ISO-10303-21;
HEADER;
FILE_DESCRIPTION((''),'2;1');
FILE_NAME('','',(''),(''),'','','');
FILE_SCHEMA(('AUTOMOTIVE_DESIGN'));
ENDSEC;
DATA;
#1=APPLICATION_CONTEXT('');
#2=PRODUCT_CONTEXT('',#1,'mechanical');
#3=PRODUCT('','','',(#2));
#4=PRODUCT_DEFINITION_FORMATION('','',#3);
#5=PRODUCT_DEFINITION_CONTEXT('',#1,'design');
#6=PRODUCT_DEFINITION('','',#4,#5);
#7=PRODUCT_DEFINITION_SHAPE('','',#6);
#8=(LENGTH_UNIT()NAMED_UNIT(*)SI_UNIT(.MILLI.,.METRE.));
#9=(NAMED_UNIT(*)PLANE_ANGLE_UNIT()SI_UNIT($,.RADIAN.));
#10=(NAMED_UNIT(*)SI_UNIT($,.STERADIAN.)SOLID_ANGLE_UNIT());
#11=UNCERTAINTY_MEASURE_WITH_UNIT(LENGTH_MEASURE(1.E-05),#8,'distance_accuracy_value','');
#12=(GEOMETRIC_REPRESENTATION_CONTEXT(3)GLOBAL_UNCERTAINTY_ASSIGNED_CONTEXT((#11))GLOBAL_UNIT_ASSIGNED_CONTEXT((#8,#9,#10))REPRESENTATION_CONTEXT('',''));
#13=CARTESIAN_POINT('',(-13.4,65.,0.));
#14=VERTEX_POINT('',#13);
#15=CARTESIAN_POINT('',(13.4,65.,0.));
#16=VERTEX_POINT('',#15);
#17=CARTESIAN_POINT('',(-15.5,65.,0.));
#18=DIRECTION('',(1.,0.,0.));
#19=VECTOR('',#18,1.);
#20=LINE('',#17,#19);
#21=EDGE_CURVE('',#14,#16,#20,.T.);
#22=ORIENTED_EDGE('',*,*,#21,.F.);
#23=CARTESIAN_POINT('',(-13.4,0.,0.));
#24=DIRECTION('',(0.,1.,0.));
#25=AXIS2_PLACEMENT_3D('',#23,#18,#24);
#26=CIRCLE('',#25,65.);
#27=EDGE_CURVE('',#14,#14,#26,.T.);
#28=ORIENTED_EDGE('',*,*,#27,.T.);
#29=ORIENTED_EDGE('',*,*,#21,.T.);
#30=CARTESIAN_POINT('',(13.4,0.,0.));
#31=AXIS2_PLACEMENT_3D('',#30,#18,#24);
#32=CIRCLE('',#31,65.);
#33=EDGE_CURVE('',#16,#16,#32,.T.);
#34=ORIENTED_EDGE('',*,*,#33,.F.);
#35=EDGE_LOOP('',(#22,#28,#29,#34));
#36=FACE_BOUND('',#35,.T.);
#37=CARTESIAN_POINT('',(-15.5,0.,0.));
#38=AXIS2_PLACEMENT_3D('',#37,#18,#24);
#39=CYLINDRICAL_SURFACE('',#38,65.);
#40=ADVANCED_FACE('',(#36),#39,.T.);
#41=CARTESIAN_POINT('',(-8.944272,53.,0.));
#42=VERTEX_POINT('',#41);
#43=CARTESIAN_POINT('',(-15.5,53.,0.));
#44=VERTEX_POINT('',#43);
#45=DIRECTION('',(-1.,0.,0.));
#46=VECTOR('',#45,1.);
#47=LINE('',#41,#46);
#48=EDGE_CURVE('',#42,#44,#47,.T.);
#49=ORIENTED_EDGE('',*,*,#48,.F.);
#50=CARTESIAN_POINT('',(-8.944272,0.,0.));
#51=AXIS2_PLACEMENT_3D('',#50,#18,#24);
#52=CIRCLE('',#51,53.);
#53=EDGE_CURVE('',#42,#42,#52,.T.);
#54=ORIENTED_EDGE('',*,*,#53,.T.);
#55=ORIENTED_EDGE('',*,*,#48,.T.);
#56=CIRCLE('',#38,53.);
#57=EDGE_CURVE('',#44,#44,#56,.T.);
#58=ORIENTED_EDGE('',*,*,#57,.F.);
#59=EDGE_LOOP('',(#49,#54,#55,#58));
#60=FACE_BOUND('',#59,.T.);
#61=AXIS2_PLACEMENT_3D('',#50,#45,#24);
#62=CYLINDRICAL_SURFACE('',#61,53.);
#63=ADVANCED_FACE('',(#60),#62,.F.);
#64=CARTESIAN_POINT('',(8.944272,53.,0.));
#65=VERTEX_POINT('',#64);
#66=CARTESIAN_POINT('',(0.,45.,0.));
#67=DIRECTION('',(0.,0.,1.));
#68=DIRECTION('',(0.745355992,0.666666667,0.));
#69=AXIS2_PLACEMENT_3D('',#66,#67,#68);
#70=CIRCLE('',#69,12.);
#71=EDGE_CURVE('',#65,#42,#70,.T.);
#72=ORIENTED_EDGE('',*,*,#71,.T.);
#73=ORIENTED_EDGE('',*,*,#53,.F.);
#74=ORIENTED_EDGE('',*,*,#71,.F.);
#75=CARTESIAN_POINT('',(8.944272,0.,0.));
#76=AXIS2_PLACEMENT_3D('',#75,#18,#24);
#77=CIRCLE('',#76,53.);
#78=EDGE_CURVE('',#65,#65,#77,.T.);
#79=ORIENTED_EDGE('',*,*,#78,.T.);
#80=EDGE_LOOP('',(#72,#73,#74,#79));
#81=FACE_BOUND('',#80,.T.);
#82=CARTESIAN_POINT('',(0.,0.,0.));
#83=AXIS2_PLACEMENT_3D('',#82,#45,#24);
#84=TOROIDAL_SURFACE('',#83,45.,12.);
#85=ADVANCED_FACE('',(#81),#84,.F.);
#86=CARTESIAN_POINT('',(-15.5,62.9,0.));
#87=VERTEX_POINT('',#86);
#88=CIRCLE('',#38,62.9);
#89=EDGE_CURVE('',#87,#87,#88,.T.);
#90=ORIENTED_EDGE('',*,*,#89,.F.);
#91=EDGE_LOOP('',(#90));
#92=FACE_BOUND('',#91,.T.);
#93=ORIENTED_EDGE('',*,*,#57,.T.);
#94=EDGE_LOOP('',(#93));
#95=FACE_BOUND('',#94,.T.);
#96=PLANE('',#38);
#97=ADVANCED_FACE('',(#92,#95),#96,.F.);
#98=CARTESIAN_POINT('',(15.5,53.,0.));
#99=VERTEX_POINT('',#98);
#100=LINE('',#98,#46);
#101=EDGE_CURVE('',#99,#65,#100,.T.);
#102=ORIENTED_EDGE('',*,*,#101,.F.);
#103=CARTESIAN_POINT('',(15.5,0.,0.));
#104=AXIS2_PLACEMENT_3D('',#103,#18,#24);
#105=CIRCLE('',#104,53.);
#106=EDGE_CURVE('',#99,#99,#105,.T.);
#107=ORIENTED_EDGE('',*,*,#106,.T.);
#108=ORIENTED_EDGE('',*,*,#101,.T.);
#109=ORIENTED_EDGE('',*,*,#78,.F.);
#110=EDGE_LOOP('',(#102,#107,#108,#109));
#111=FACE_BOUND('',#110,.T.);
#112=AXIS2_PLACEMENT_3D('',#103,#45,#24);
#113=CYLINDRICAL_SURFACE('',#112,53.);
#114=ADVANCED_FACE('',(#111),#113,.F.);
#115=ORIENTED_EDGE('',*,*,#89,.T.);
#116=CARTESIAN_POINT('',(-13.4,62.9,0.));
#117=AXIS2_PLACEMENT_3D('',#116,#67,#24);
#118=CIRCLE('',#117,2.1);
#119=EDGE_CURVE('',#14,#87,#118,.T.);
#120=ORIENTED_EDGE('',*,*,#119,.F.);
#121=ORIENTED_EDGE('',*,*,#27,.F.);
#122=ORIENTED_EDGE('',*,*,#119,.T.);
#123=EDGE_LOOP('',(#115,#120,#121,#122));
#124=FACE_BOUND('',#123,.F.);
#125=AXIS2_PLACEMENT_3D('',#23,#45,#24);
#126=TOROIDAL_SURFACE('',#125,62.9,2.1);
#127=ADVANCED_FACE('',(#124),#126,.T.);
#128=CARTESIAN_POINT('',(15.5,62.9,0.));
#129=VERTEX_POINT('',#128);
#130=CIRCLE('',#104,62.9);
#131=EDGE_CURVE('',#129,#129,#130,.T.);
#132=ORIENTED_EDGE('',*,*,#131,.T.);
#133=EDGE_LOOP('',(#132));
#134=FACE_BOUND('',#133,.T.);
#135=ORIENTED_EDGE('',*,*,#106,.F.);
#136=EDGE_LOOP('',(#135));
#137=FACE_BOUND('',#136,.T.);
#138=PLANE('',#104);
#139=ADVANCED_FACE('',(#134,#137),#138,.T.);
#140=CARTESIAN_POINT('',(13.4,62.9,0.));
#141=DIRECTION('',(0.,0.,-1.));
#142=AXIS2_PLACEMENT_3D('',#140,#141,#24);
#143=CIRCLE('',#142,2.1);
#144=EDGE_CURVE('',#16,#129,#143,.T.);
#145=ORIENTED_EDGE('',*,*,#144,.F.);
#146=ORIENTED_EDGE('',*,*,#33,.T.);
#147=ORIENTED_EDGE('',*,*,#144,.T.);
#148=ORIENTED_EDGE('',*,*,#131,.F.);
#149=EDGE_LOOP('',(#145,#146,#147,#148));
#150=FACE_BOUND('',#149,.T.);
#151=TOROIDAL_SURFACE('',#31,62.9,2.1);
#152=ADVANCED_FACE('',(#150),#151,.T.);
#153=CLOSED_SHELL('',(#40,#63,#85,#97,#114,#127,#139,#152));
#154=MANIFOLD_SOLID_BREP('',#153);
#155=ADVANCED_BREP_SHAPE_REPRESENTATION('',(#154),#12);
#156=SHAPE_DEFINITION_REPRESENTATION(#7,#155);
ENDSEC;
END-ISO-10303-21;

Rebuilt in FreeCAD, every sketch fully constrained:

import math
import FreeCAD as App
import Part
import Sketcher

V = App.Vector


def edges_at(feature, points):
    """Names of the edges that pass closest to the given points."""
    edges = feature.Shape.Edges
    near = lambda p: min(range(len(edges)), key=lambda i: edges[i].distToShape(Part.Vertex(*p))[0])
    return sorted({f"Edge{near(p) + 1}" for p in points})

doc = App.newDocument("Part")
params = doc.addObject("Spreadsheet::Sheet", "Params")
for row, (alias, value) in enumerate([
    ("sketch1_radius", "12 mm"),
    ("sketch1_width", "31 mm"),
    ("sketch1_height", "12 mm"),
    ("revolution_angle", "360 deg"),
    ("fillet_radius", "2.1 mm"),
], start=1):
    params.set(f"A{row}", alias)
    params.set(f"B{row}", "=" + value)
    params.setAlias(f"B{row}", alias)

body = doc.addObject("PartDesign::Body", "Body")

sketch1 = doc.addObject("Sketcher::SketchObject", "Sketch")
body.addObject(sketch1)
sketch1.AttachmentSupport = (doc.XY_Plane, [""])
sketch1.MapMode = "FlatFace"
sketch1.addGeometry([
    Part.LineSegment(V(16, 65, 0), V(-16, 65, 0)),
    Part.LineSegment(V(-16, 65, 0), V(-16, 53, 0)),
    Part.LineSegment(V(-16, 53, 0), V(-9, 53, 0)),
    Part.ArcOfCircle(Part.Circle(V(0, 45, 0), V(0, 0, 1), 12), math.radians(42), math.radians(138)),
    Part.LineSegment(V(9, 53, 0), V(16, 53, 0)),
    Part.LineSegment(V(16, 53, 0), V(16, 65, 0)),
], False)
sketch1.addConstraint([
    Sketcher.Constraint("Coincident", 0, 2, 1, 1),
    Sketcher.Constraint("Coincident", 1, 2, 2, 1),
    Sketcher.Constraint("Coincident", 2, 2, 3, 2),
    Sketcher.Constraint("Coincident", 3, 1, 4, 1),
    Sketcher.Constraint("Coincident", 4, 2, 5, 1),
    Sketcher.Constraint("Coincident", 5, 2, 0, 1),
    Sketcher.Constraint("Horizontal", 0),
    Sketcher.Constraint("Vertical", 1),
    Sketcher.Constraint("Horizontal", 2),
    Sketcher.Constraint("Horizontal", 4),
    Sketcher.Constraint("Vertical", 5),
    Sketcher.Constraint("Symmetric", 2, 2, 3, 1, -2),
    Sketcher.Constraint("Equal", 2, 4),
    Sketcher.Constraint("Radius", 3, 12.0),
    Sketcher.Constraint("DistanceX", 0, 2, 0, 1, 31.0),
    Sketcher.Constraint("DistanceY", 1, 2, 1, 1, 12.0),
    Sketcher.Constraint("DistanceY", -1, 1, 3, 3, 45.0),
    Sketcher.Constraint("DistanceY", -1, 1, 0, 2, 65.0),
])
sketch1.setExpression("Constraints[13]", "Params.sketch1_radius")
sketch1.setExpression("Constraints[14]", "Params.sketch1_width")
sketch1.setExpression("Constraints[15]", "Params.sketch1_height")
revolution = doc.addObject("PartDesign::Revolution", "Revolution")
body.addObject(revolution)
revolution.Profile = sketch1
revolution.ReferenceAxis = (sketch1, ["H_Axis"])
revolution.setExpression("Angle", "Params.revolution_angle")
doc.recompute()

fillet = doc.addObject("PartDesign::Fillet", "Fillet")
body.addObject(fillet)
fillet.Base = (revolution, edges_at(revolution, [(-15.5, -65, 0), (15.5, -65, 0)]))
fillet.setExpression("Radius", "Params.fillet_radius")

doc.recompute()
